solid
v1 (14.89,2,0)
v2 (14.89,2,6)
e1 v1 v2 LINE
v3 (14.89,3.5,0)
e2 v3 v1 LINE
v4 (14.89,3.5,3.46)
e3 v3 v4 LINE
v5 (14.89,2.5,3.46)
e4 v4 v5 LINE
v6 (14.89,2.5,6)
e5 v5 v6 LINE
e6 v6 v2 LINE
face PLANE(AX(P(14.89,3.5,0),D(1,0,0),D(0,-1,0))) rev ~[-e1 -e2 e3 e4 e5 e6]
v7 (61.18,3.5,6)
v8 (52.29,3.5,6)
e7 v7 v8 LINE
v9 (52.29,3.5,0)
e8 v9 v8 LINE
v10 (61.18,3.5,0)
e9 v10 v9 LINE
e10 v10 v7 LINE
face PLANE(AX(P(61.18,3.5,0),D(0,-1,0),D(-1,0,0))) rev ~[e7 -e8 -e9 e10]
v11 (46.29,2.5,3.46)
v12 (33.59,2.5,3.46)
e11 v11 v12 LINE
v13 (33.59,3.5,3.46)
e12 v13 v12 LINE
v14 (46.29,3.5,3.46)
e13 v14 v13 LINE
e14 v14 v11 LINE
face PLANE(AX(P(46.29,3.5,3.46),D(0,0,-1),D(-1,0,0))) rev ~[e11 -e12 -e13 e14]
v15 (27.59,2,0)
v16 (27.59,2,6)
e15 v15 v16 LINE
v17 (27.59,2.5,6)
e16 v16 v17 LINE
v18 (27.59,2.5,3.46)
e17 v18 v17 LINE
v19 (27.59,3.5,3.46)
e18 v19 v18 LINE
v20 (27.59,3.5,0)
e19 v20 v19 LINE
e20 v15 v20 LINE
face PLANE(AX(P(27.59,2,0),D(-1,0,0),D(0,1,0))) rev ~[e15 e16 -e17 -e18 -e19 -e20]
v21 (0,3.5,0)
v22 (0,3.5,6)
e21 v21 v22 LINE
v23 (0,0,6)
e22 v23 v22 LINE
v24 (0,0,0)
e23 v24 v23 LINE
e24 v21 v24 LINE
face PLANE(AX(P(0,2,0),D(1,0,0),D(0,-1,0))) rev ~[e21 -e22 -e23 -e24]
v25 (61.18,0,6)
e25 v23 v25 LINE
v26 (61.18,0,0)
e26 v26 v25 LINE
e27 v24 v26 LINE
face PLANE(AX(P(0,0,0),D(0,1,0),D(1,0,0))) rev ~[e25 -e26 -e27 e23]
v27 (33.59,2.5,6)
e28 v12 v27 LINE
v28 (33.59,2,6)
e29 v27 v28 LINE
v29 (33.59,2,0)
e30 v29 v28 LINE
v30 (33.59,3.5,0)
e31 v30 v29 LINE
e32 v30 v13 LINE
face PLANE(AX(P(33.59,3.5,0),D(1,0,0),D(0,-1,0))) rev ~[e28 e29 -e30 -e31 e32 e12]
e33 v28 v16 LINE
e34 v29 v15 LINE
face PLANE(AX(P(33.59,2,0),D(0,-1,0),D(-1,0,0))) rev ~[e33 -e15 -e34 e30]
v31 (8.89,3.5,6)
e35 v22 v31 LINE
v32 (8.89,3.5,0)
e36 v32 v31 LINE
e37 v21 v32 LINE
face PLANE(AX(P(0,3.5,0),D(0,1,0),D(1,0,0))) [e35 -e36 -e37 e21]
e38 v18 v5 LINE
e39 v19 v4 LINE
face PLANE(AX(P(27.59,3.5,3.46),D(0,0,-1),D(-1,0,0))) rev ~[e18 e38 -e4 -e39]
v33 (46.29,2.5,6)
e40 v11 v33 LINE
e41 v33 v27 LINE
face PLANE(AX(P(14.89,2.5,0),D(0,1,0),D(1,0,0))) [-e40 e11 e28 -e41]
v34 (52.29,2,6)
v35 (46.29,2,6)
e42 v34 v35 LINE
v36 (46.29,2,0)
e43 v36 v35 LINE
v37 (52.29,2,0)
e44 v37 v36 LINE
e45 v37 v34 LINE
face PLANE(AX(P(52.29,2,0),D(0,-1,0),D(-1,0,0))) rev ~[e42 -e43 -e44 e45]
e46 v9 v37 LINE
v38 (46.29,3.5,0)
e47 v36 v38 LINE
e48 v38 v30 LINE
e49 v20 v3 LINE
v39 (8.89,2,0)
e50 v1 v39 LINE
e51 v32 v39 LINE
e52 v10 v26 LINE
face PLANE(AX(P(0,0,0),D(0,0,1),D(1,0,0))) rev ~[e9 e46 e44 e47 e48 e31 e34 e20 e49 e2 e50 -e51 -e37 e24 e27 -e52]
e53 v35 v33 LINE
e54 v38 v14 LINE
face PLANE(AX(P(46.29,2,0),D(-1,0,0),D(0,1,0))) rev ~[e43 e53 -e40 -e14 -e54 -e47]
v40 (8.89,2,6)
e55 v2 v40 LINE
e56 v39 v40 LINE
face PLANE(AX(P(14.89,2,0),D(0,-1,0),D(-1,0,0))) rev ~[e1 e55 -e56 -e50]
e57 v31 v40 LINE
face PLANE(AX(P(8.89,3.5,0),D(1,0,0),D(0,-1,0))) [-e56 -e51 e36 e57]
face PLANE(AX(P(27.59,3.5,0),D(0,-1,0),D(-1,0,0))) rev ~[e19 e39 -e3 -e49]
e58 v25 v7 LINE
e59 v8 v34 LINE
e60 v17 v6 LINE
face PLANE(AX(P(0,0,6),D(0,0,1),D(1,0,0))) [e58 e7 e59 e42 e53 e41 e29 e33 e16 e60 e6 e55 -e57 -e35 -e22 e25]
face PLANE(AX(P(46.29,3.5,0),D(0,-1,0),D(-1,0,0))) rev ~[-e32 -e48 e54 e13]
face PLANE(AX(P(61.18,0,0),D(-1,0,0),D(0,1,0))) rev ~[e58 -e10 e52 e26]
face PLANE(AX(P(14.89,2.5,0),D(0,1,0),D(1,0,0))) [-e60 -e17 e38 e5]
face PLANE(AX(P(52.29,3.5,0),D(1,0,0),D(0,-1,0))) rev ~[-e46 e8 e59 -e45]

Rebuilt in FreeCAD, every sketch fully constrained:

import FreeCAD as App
import Part
import Sketcher
Q = App.Units.Quantity

doc = App.newDocument("Part")
body = doc.addObject("PartDesign::Body", "Body")

sketch1 = body.newObject("Sketcher::SketchObject", "Sketch")
sketch1.AttachmentSupport = (doc.getObject("XY_Plane"), [""])
sketch1.MapMode = "FlatFace"
sketch1.addGeometry([
    Part.LineSegment(App.Vector(0, 0, 0), App.Vector(61.18, 0, 0)),
    Part.LineSegment(App.Vector(61.18, 0, 0), App.Vector(61.18, 3.5, 0)),
    Part.LineSegment(App.Vector(61.18, 3.5, 0), App.Vector(52.29, 3.5, 0)),
    Part.LineSegment(App.Vector(52.29, 3.5, 0), App.Vector(52.29, 2, 0)),
    Part.LineSegment(App.Vector(52.29, 2, 0), App.Vector(46.29, 2, 0)),
    Part.LineSegment(App.Vector(46.29, 2, 0), App.Vector(46.29, 3.5, 0)),
    Part.LineSegment(App.Vector(46.29, 3.5, 0), App.Vector(33.59, 3.5, 0)),
    Part.LineSegment(App.Vector(33.59, 3.5, 0), App.Vector(33.59, 2, 0)),
    Part.LineSegment(App.Vector(33.59, 2, 0), App.Vector(27.59, 2, 0)),
    Part.LineSegment(App.Vector(27.59, 2, 0), App.Vector(27.59, 3.5, 0)),
    Part.LineSegment(App.Vector(27.59, 3.5, 0), App.Vector(14.89, 3.5, 0)),
    Part.LineSegment(App.Vector(14.89, 3.5, 0), App.Vector(14.89, 2, 0)),
    Part.LineSegment(App.Vector(14.89, 2, 0), App.Vector(8.89, 2, 0)),
    Part.LineSegment(App.Vector(8.89, 2, 0), App.Vector(8.89, 3.5, 0)),
    Part.LineSegment(App.Vector(8.89, 3.5, 0), App.Vector(0, 3.5, 0)),
    Part.LineSegment(App.Vector(0, 3.5, 0), App.Vector(0, 0, 0)),
], False)
sketch1.addConstraint([
    Sketcher.Constraint("Coincident", 0, 2, 1, 1),
    Sketcher.Constraint("Coincident", 1, 2, 2, 1),
    Sketcher.Constraint("Coincident", 2, 2, 3, 1),
    Sketcher.Constraint("Coincident", 3, 2, 4, 1),
    Sketcher.Constraint("Coincident", 4, 2, 5, 1),
    Sketcher.Constraint("Coincident", 5, 2, 6, 1),
    Sketcher.Constraint("Coincident", 6, 2, 7, 1),
    Sketcher.Constraint("Coincident", 7, 2, 8, 1),
    Sketcher.Constraint("Coincident", 8, 2, 9, 1),
    Sketcher.Constraint("Coincident", 9, 2, 10, 1),
    Sketcher.Constraint("Coincident", 10, 2, 11, 1),
    Sketcher.Constraint("Coincident", 11, 2, 12, 1),
    Sketcher.Constraint("Coincident", 12, 2, 13, 1),
    Sketcher.Constraint("Coincident", 13, 2, 14, 1),
    Sketcher.Constraint("Coincident", 14, 2, 15, 1),
    Sketcher.Constraint("Coincident", 15, 2, 0, 1),
    Sketcher.Constraint("Horizontal", 0),
    Sketcher.Constraint("Vertical", 1),
    Sketcher.Constraint("Horizontal", 2),
    Sketcher.Constraint("Vertical", 3),
    Sketcher.Constraint("Horizontal", 4),
    Sketcher.Constraint("Vertical", 5),
    Sketcher.Constraint("Horizontal", 6),
    Sketcher.Constraint("Vertical", 7),
    Sketcher.Constraint("Horizontal", 8),
    Sketcher.Constraint("Vertical", 9),
    Sketcher.Constraint("Horizontal", 10),
    Sketcher.Constraint("Vertical", 11),
    Sketcher.Constraint("Horizontal", 12),
    Sketcher.Constraint("Vertical", 13),
    Sketcher.Constraint("Horizontal", 14),
    Sketcher.Constraint("Vertical", 15),
    Sketcher.Constraint("Coincident", 15, 2, -1, 1),
    Sketcher.Constraint("Horizontal", 2, 2, 5, 2),
    Sketcher.Constraint("Horizontal", 4, 2, 7, 2),
    Sketcher.Constraint("Horizontal", 6, 2, 9, 2),
    Sketcher.Constraint("Horizontal", 8, 2, 11, 2),
    Sketcher.Constraint("Horizontal", 10, 2, 13, 2),
    Sketcher.Constraint("Equal", 4, 8),
    Sketcher.Constraint("Equal", 6, 10),
    Sketcher.Constraint("Equal", 8, 12),
    Sketcher.Constraint("Equal", 2, 14),
    Sketcher.Constraint("DistanceX", 4, 2, 4, 1, Q("6 mm")),
    Sketcher.Constraint("DistanceX", 6, 2, 6, 1, Q("12.7 mm")),
    Sketcher.Constraint("DistanceY", 3, 2, 3, 1, Q("1.5 mm")),
    Sketcher.Constraint("DistanceY", -1, 1, 3, 2, Q("2 mm")),
    Sketcher.Constraint("DistanceX", 2, 2, 2, 1, Q("8.89 mm")),
])
pad1 = body.newObject("PartDesign::Pad", "Pad")
pad1.Profile = sketch1
pad1.Length = 6

sketch2 = body.newObject("Sketcher::SketchObject", "Sketch001")
sketch2.AttachmentSupport = (doc.getObject("XZ_Plane"), [""])
sketch2.MapMode = "FlatFace"
sketch2.AttachmentOffset = App.Placement(App.Vector(0, 0, -3.5), App.Rotation())
sketch2.addGeometry([
    Part.LineSegment(App.Vector(14.89, 6, 0), App.Vector(27.59, 6, 0)),
    Part.LineSegment(App.Vector(27.59, 6, 0), App.Vector(27.59, 3.46, 0)),
    Part.LineSegment(App.Vector(27.59, 3.46, 0), App.Vector(14.89, 3.46, 0)),
    Part.LineSegment(App.Vector(14.89, 3.46, 0), App.Vector(14.89, 6, 0)),
    Part.LineSegment(App.Vector(46.29, 6, 0), App.Vector(46.29, 3.46, 0)),
    Part.LineSegment(App.Vector(46.29, 3.46, 0), App.Vector(33.59, 3.46, 0)),
    Part.LineSegment(App.Vector(33.59, 3.46, 0), App.Vector(33.59, 6, 0)),
    Part.LineSegment(App.Vector(33.59, 6, 0), App.Vector(46.29, 6, 0)),
], False)
sketch2.addConstraint([
    Sketcher.Constraint("Coincident", 0, 2, 1, 1),
    Sketcher.Constraint("Coincident", 1, 2, 2, 1),
    Sketcher.Constraint("Coincident", 2, 2, 3, 1),
    Sketcher.Constraint("Coincident", 3, 2, 0, 1),
    Sketcher.Constraint("Coincident", 4, 2, 5, 1),
    Sketcher.Constraint("Coincident", 5, 2, 6, 1),
    Sketcher.Constraint("Coincident", 6, 2, 7, 1),
    Sketcher.Constraint("Coincident", 7, 2, 4, 1),
    Sketcher.Constraint("Horizontal", 0),
    Sketcher.Constraint("Vertical", 1),
    Sketcher.Constraint("Horizontal", 2),
    Sketcher.Constraint("Vertical", 3),
    Sketcher.Constraint("Vertical", 4),
    Sketcher.Constraint("Horizontal", 5),
    Sketcher.Constraint("Vertical", 6),
    Sketcher.Constraint("Horizontal", 7),
    Sketcher.Constraint("Horizontal", 2, 2, 4, 2),
    Sketcher.Constraint("Horizontal", 3, 2, 6, 2),
    Sketcher.Constraint("Equal", 2, 5),
    Sketcher.Constraint("DistanceY", 1, 2, 1, 1, Q("2.54 mm")),
    Sketcher.Constraint("DistanceX", 0, 1, 0, 2, Q("12.7 mm")),
    Sketcher.Constraint("DistanceY", -1, 1, 0, 2, Q("6 mm")),
    Sketcher.Constraint("DistanceX", 1, 2, 5, 2, Q("6 mm")),
    Sketcher.Constraint("DistanceX", -1, 1, 0, 2, Q("27.59 mm")),
])
pocket1 = body.newObject("PartDesign::Pocket", "Pocket")
pocket1.Profile = sketch2
pocket1.Length = 1
pocket1.Reversed = True

doc.recompute()
